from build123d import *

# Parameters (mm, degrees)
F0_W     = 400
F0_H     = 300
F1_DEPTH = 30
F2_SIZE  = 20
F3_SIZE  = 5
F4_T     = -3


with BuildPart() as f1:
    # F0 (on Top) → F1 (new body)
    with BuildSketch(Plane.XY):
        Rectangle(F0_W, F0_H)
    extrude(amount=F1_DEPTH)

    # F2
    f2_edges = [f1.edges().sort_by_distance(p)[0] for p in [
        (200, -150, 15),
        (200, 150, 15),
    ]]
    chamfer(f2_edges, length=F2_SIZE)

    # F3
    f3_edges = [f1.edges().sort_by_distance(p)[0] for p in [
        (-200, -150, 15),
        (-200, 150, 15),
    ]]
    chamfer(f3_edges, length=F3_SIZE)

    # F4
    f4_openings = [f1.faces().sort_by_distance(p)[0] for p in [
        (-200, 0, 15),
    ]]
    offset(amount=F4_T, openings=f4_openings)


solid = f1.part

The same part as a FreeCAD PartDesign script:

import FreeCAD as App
import Part
import Sketcher

V = App.Vector


def edges_at(feature, points):
    """Names of the edges that pass closest to the given points."""
    edges = feature.Shape.Edges
    near = lambda p: min(range(len(edges)), key=lambda i: edges[i].distToShape(Part.Vertex(*p))[0])
    return sorted({f"Edge{near(p) + 1}" for p in points})


def faces_at(feature, points):
    """Names of the faces that lie closest to the given points."""
    faces = feature.Shape.Faces
    near = lambda p: min(range(len(faces)), key=lambda i: faces[i].distToShape(Part.Vertex(*p))[0])
    return sorted({f"Face{near(p) + 1}" for p in points})


def add_polygon(sketch, points):
    """Adds a closed chain of lines whose ends are joined by coincident constraints."""
    first, n = sketch.GeometryCount, len(points)
    for a, b in zip(points, points[1:] + points[:1]):
        sketch.addGeometry(Part.LineSegment(App.Vector(*a, 0), App.Vector(*b, 0)), False)
    for i in range(n):
        sketch.addConstraint(Sketcher.Constraint("Coincident", first + i, 2, first + (i + 1) % n, 1))

doc = App.newDocument("Part")
body = doc.addObject("PartDesign::Body", "Body")

sketch1 = doc.addObject("Sketcher::SketchObject", "Sketch")
body.addObject(sketch1)
sketch1.AttachmentSupport = (doc.XY_Plane, [""])
sketch1.MapMode = "FlatFace"
add_polygon(sketch1, [(-200, 150), (-200, -150), (200, -150), (200, 150)])
sketch1.addConstraint([
    Sketcher.Constraint("Vertical", 0),
    Sketcher.Constraint("Horizontal", 1),
    Sketcher.Constraint("Vertical", 2),
    Sketcher.Constraint("Horizontal", 3),
    Sketcher.Constraint("Symmetric", 0, 2, 2, 2, -1, 1),
    Sketcher.Constraint("DistanceX", 1, 1, 1, 2, 400.0),
    Sketcher.Constraint("DistanceY", 0, 2, 0, 1, 300.0),
])
pad1 = doc.addObject("PartDesign::Pad", "Pad")
body.addObject(pad1)
pad1.Profile = sketch1
pad1.Length = 30
doc.recompute()

chamfer = doc.addObject("PartDesign::Chamfer", "Chamfer")
body.addObject(chamfer)
chamfer.Base = (pad1, edges_at(pad1, [(200, -150, 15), (200, 150, 15)]))
chamfer.Size = 20
doc.recompute()

chamfer2 = doc.addObject("PartDesign::Chamfer", "Chamfer001")
body.addObject(chamfer2)
chamfer2.Base = (chamfer, edges_at(chamfer, [(-200, -150, 15), (-200, 150, 15)]))
chamfer2.Size = 5
doc.recompute()

thickness = doc.addObject("PartDesign::Thickness", "Thickness")
body.addObject(thickness)
thickness.Base = (chamfer2, faces_at(chamfer2, [(-200, 0, 15)]))
thickness.Value = 3
thickness.Reversed = True
thickness.Join = "Arc"

doc.recompute()
